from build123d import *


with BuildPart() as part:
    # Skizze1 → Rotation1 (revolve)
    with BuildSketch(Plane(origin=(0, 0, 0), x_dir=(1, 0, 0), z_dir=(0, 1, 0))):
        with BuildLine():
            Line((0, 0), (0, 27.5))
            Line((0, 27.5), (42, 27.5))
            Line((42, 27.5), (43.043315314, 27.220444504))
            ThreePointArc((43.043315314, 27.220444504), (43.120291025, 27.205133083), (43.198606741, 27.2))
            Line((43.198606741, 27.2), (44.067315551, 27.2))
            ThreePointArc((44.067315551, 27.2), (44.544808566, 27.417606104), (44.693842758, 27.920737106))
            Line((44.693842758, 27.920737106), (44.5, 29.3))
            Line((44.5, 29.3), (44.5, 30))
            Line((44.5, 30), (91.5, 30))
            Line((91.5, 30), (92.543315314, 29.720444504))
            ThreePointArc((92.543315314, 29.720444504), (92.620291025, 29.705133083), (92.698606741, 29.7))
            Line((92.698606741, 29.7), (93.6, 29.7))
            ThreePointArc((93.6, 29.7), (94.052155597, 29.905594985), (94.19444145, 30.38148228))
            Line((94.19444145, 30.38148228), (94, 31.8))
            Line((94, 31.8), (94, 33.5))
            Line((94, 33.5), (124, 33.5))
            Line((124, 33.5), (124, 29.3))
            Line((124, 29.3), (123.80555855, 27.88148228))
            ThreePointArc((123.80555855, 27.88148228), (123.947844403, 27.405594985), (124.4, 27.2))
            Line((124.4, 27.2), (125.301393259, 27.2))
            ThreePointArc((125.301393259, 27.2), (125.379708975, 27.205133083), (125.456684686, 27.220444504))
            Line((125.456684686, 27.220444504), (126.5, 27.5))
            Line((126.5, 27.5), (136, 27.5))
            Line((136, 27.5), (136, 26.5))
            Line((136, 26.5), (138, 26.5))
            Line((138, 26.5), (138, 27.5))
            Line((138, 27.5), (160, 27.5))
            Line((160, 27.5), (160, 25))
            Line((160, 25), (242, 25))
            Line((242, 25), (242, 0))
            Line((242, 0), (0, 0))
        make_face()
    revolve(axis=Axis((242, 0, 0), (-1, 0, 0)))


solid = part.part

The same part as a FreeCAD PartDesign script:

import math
import FreeCAD as App
import Part
import Sketcher
Q = App.Units.Quantity

doc = App.newDocument("Part")
body = doc.addObject("PartDesign::Body", "Body")

# Sketch on XZ plane
sketch1 = body.newObject("Sketcher::SketchObject", "Sketch")
sketch1.AttachmentSupport = (doc.getObject("XZ_Plane"), [""])
sketch1.MapMode = "FlatFace"
sketch1.addGeometry([
    Part.LineSegment(App.Vector(0, -27.5, 0), App.Vector(0, 0, 0)),  # 0
    Part.LineSegment(App.Vector(0, 0, 0), App.Vector(242, 0, 0)),  # 1
    Part.LineSegment(App.Vector(242, 0, 0), App.Vector(242, -25, 0)),  # 2
    Part.LineSegment(App.Vector(242, -25, 0), App.Vector(160, -25, 0)),  # 3
    Part.LineSegment(App.Vector(160, -25, 0), App.Vector(160, -27.5, 0)),  # 4
    Part.LineSegment(App.Vector(160, -27.5, 0), App.Vector(138, -27.5, 0)),  # 5
    Part.LineSegment(App.Vector(138, -27.5, 0), App.Vector(138, -26.5, 0)),  # 6
    Part.LineSegment(App.Vector(138, -26.5, 0), App.Vector(136, -26.5, 0)),  # 7
    Part.LineSegment(App.Vector(136, -26.5, 0), App.Vector(136, -27.5, 0)),  # 8
    Part.LineSegment(App.Vector(136, -27.5, 0), App.Vector(126.5, -27.5, 0)),  # 9
    Part.LineSegment(App.Vector(126.5, -27.5, 0), App.Vector(125.46, -27.22, 0)),  # 10
    Part.ArcOfCircle(Part.Circle(App.Vector(125.3, -27.8, 0), App.Vector(0, 0, 1), 0.6), math.radians(75), math.radians(90)),  # 11
    Part.LineSegment(App.Vector(125.3, -27.2, 0), App.Vector(124.4, -27.2, 0)),  # 12
    Part.ArcOfCircle(Part.Circle(App.Vector(124.4, -27.8, 0), App.Vector(0, 0, 1), 0.6), math.radians(90), math.radians(188)),  # 13
    Part.LineSegment(App.Vector(123.81, -27.88, 0), App.Vector(124, -29.3, 0)),  # 14
    Part.LineSegment(App.Vector(124, -29.3, 0), App.Vector(124, -33.5, 0)),  # 15
    Part.LineSegment(App.Vector(124, -33.5, 0), App.Vector(94, -33.5, 0)),  # 16
    Part.LineSegment(App.Vector(94, -33.5, 0), App.Vector(94, -31.8, 0)),  # 17
    Part.LineSegment(App.Vector(94, -31.8, 0), App.Vector(94.19, -30.38, 0)),  # 18
    Part.ArcOfCircle(Part.Circle(App.Vector(93.6, -30.3, 0), App.Vector(0, 0, 1), 0.6), math.radians(-8), math.radians(90)),  # 19
    Part.LineSegment(App.Vector(93.6, -29.7, 0), App.Vector(92.7, -29.7, 0)),  # 20
    Part.ArcOfCircle(Part.Circle(App.Vector(92.7, -30.3, 0), App.Vector(0, 0, 1), 0.6), math.radians(90), math.radians(105)),  # 21
    Part.LineSegment(App.Vector(92.54, -29.72, 0), App.Vector(91.5, -30, 0)),  # 22
    Part.LineSegment(App.Vector(91.5, -30, 0), App.Vector(44.5, -30, 0)),  # 23
    Part.LineSegment(App.Vector(44.5, -30, 0), App.Vector(44.5, -29.3, 0)),  # 24
    Part.LineSegment(App.Vector(44.5, -29.3, 0), App.Vector(44.69, -27.92, 0)),  # 25
    Part.ArcOfCircle(Part.Circle(App.Vector(44.07, -27.83, 0), App.Vector(0, 0, 1), 0.63), math.radians(-8), math.radians(90)),  # 26
    Part.LineSegment(App.Vector(44.07, -27.2, 0), App.Vector(43.2, -27.2, 0)),  # 27
    Part.ArcOfCircle(Part.Circle(App.Vector(43.2, -27.8, 0), App.Vector(0, 0, 1), 0.6), math.radians(90), math.radians(105)),  # 28
    Part.LineSegment(App.Vector(43.04, -27.22, 0), App.Vector(42, -27.5, 0)),  # 29
    Part.LineSegment(App.Vector(42, -27.5, 0), App.Vector(0, -27.5, 0)),  # 30
], False)
sketch1.addConstraint([
    Sketcher.Constraint("Coincident", 0, 2, 1, 1),
    Sketcher.Constraint("Coincident", 1, 2, 2, 1),
    Sketcher.Constraint("Coincident", 2, 2, 3, 1),
    Sketcher.Constraint("Coincident", 3, 2, 4, 1),
    Sketcher.Constraint("Coincident", 4, 2, 5, 1),
    Sketcher.Constraint("Coincident", 5, 2, 6, 1),
    Sketcher.Constraint("Coincident", 6, 2, 7, 1),
    Sketcher.Constraint("Coincident", 7, 2, 8, 1),
    Sketcher.Constraint("Coincident", 8, 2, 9, 1),
    Sketcher.Constraint("Coincident", 9, 2, 10, 1),
    Sketcher.Constraint("Tangent", 10, 2, 11, 1),
    Sketcher.Constraint("Tangent", 11, 2, 12, 1),
    Sketcher.Constraint("Tangent", 12, 2, 13, 1),
    Sketcher.Constraint("Tangent", 13, 2, 14, 1),
    Sketcher.Constraint("Coincident", 14, 2, 15, 1),
    Sketcher.Constraint("Coincident", 15, 2, 16, 1),
    Sketcher.Constraint("Coincident", 16, 2, 17, 1),
    Sketcher.Constraint("Coincident", 17, 2, 18, 1),
    Sketcher.Constraint("Tangent", 18, 2, 19, 1),
    Sketcher.Constraint("Tangent", 19, 2, 20, 1),
    Sketcher.Constraint("Tangent", 20, 2, 21, 1),
    Sketcher.Constraint("Tangent", 21, 2, 22, 1),
    Sketcher.Constraint("Coincident", 22, 2, 23, 1),
    Sketcher.Constraint("Coincident", 23, 2, 24, 1),
    Sketcher.Constraint("Coincident", 24, 2, 25, 1),
    Sketcher.Constraint("Tangent", 25, 2, 26, 1),
    Sketcher.Constraint("Tangent", 26, 2, 27, 1),
    Sketcher.Constraint("Tangent", 27, 2, 28, 1),
    Sketcher.Constraint("Tangent", 28, 2, 29, 1),
    Sketcher.Constraint("Coincident", 29, 2, 30, 1),
    Sketcher.Constraint("Coincident", 30, 2, 0, 1),
    Sketcher.Constraint("Vertical", 0),
    Sketcher.Constraint("Horizontal", 1),
    Sketcher.Constraint("Vertical", 2),
    Sketcher.Constraint("Horizontal", 3),
    Sketcher.Constraint("Vertical", 4),
    Sketcher.Constraint("Horizontal", 5),
    Sketcher.Constraint("Vertical", 6),
    Sketcher.Constraint("Horizontal", 7),
    Sketcher.Constraint("Vertical", 8),
    Sketcher.Constraint("Horizontal", 9),
    Sketcher.Constraint("Horizontal", 12),
    Sketcher.Constraint("Vertical", 15),
    Sketcher.Constraint("Horizontal", 16),
    Sketcher.Constraint("Vertical", 17),
    Sketcher.Constraint("Horizontal", 20),
    Sketcher.Constraint("Horizontal", 23),
    Sketcher.Constraint("Vertical", 24),
    Sketcher.Constraint("Horizontal", 27),
    Sketcher.Constraint("Horizontal", 30),
    Sketcher.Constraint("Coincident", 0, 2, -1, 1),
    Sketcher.Constraint("Equal", 11, 13),
    Sketcher.Constraint("Equal", 13, 19),
    Sketcher.Constraint("Equal", 19, 21),
    Sketcher.Constraint("Equal", 21, 28),
    Sketcher.Constraint("Parallel", 22, 29),
    Sketcher.Constraint("Horizontal", 13, 3, 28, 3),
    Sketcher.Constraint("Horizontal", 5, 2, 8, 2),
    Sketcher.Constraint("Horizontal", 14, 2, 24, 2),
    Sketcher.Constraint("Horizontal", 10, 2, 28, 2),
    Sketcher.Constraint("Horizontal", 9, 2, 29, 2),
    Sketcher.Constraint("Equal", 12, 20),
    Sketcher.Constraint("Equal", 14, 18),
    Sketcher.Constraint("Equal", 10, 22),
    Sketcher.Constraint("Radius", 11, 0.6),
    Sketcher.Constraint("DistanceX", 1, 1, 1, 2, 242.0),
    Sketcher.Constraint("DistanceX", 3, 2, 3, 1, 82.0),
    Sketcher.Constraint("DistanceX", 5, 2, 5, 1, 22.0),
    Sketcher.Constraint("DistanceX", 7, 2, 7, 1, 2.0),
    Sketcher.Constraint("DistanceX", 16, 2, 16, 1, 30.0),
    Sketcher.Constraint("DistanceX", 23, 2, 23, 1, 47.0),
    Sketcher.Constraint("DistanceX", 30, 2, 30, 1, 42.0),
    Sketcher.Constraint("DistanceY", 2, 2, 2, 1, 25.0),
    Sketcher.Constraint("DistanceY", 6, 1, 6, 2, 1.0),
    Sketcher.Constraint("Angle", 10, Q("165 deg")),
    Sketcher.Constraint("Angle", 25, Q("82 deg")),
    Sketcher.Constraint("DistanceX", 9, 2, 9, 1, 9.5),
    Sketcher.Constraint("DistanceY", 0, 1, 0, 2, 27.5),
    Sketcher.Constraint("DistanceY", 15, 2, 15, 1, 4.2),
    Sketcher.Constraint("DistanceY", 17, 1, 17, 2, 1.7),
    Sketcher.Constraint("DistanceY", 24, 1, 24, 2, 0.7),
    Sketcher.Constraint("DistanceX", -1, 1, 14, 2, 124.0),
    Sketcher.Constraint("DistanceY", 22, 2, -1, 1, 30.0),
    Sketcher.Constraint("DistanceY", 11, 3, -1, 1, 27.8),
    Sketcher.Constraint("DistanceX", -1, 1, 13, 3, 124.4),
    Sketcher.Constraint("Radius", 26, 0.632684),
])
revolution = body.newObject("PartDesign::Revolution", "Revolution")
revolution.Profile = sketch1
revolution.ReferenceAxis = (sketch1, ["H_Axis"])
revolution.Angle = 360

doc.recompute()
